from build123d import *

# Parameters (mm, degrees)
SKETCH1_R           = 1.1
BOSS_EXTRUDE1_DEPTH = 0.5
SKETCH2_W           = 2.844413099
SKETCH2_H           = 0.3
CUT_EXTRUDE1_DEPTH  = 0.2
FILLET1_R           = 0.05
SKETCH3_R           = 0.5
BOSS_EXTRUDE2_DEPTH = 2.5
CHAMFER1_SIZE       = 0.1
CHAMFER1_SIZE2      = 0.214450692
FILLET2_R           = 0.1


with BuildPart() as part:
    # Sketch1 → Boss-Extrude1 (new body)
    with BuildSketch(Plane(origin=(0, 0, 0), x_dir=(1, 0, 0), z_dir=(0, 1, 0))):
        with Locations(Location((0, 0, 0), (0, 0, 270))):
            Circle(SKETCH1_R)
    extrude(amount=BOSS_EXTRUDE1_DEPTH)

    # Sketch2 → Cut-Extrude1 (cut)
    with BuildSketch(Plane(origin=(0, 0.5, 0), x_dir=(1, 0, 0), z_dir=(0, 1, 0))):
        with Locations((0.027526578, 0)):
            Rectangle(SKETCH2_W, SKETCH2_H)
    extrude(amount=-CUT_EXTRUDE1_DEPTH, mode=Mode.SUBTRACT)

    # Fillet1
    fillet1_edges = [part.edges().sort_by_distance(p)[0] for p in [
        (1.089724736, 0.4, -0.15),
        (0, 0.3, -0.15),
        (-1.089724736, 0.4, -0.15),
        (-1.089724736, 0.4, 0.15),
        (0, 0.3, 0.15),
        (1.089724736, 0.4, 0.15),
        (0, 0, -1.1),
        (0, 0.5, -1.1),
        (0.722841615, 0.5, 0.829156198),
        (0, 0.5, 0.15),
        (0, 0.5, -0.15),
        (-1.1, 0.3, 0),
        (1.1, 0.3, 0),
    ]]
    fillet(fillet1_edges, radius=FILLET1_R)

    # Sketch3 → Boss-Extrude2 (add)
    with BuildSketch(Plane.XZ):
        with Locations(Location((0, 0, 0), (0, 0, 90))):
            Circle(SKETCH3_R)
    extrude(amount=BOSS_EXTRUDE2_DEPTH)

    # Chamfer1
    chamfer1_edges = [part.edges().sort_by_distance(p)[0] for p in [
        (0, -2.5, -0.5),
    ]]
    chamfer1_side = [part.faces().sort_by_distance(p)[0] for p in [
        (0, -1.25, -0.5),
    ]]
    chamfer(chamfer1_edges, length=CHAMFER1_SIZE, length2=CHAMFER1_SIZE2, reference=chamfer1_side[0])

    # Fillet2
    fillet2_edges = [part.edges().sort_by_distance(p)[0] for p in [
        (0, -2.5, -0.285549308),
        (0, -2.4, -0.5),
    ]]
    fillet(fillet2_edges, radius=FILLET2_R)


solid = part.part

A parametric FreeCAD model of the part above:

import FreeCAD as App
import Part
import Sketcher


def edges_at(feature, points):
    """Names of the edges that pass closest to the given points."""
    edges = feature.Shape.Edges
    near = lambda p: min(range(len(edges)), key=lambda i: edges[i].distToShape(Part.Vertex(*p))[0])
    return sorted({f"Edge{near(p) + 1}" for p in points})

doc = App.newDocument("Part")
params = doc.addObject("Spreadsheet::Sheet", "Params")
for row, (alias, value) in enumerate([
    ("sketch1_diameter", "2.2 mm"),
    ("pad1_length", "0.5 mm"),
    ("sketch2_height", "0.3 mm"),
    ("pocket1_length", "0.2 mm"),
    ("fillet_radius", "0.05 mm"),
    ("sketch3_diameter", "1 mm"),
    ("pad2_length", "2.5 mm"),
    ("chamfer_size", "0.1 mm"),
    ("chamfer_size2", "0.214451 mm"),
    ("fillet2_radius", "0.1 mm"),
], start=1):
    params.set(f"A{row}", alias)
    params.set(f"B{row}", "=" + value)
    params.setAlias(f"B{row}", alias)

body = doc.addObject("PartDesign::Body", "Body")

# Sketch on XZ plane
sketch1 = doc.addObject("Sketcher::SketchObject", "Sketch")
body.addObject(sketch1)
sketch1.AttachmentSupport = (doc.XZ_Plane, [""])
sketch1.MapMode = "FlatFace"
sketch1.addGeometry(Part.Circle(App.Vector(0, 0, 0), App.Vector(0, 0, 1), 1.1), False)
sketch1.addConstraint([
    Sketcher.Constraint("Coincident", 0, 3, -1, 1),
    Sketcher.Constraint("Diameter", 0, 2.2),
])
sketch1.setExpression("Constraints[1]", "Params.sketch1_diameter")
pad1 = doc.addObject("PartDesign::Pad", "Pad")
body.addObject(pad1)
pad1.Profile = sketch1
pad1.setExpression("Length", "Params.pad1_length")
pad1.Reversed = True

# Sketch on XZ plane
sketch2 = doc.addObject("Sketcher::SketchObject", "Sketch001")
body.addObject(sketch2)
sketch2.AttachmentSupport = (doc.XZ_Plane, [""])
sketch2.MapMode = "FlatFace"
sketch2.AttachmentOffset = App.Placement(App.Vector(0, 0, -0.5), App.Rotation())
sketch2.addGeometry([
    Part.LineSegment(App.Vector(-1.39468, -0.15, 0), App.Vector(-1.39468, 0.15, 0)),
    Part.LineSegment(App.Vector(-1.39468, 0.15, 0), App.Vector(1.449733, 0.15, 0)),
    Part.LineSegment(App.Vector(1.449733, 0.15, 0), App.Vector(1.449733, -0.15, 0)),
    Part.LineSegment(App.Vector(1.449733, -0.15, 0), App.Vector(-1.39468, -0.15, 0)),
], False)
sketch2.addConstraint([
    Sketcher.Constraint("Coincident", 0, 2, 1, 1),
    Sketcher.Constraint("Coincident", 1, 2, 2, 1),
    Sketcher.Constraint("Coincident", 2, 2, 3, 1),
    Sketcher.Constraint("Coincident", 3, 2, 0, 1),
    Sketcher.Constraint("Vertical", 0),
    Sketcher.Constraint("Horizontal", 1),
    Sketcher.Constraint("Vertical", 2),
    Sketcher.Constraint("Horizontal", 3),
    Sketcher.Constraint("DistanceY", 0, 1, 0, 2, 0.3),
    Sketcher.Constraint("DistanceY", -1, 1, 0, 2, 0.15),
    Sketcher.Constraint("DistanceX", 1, 1, 1, 2, 2.844413),
    Sketcher.Constraint("DistanceX", 0, 2, -1, 1, 1.39468),
])
sketch2.setExpression("Constraints[8]", "Params.sketch2_height")
pocket1 = doc.addObject("PartDesign::Pocket", "Pocket")
body.addObject(pocket1)
pocket1.Profile = sketch2
pocket1.setExpression("Length", "Params.pocket1_length")
pocket1.Reversed = True
doc.recompute()

fillet = doc.addObject("PartDesign::Fillet", "Fillet")
body.addObject(fillet)
fillet.Base = (pocket1, ["Edge1"])
fillet.UseAllEdges = True
fillet.setExpression("Radius", "Params.fillet_radius")

# Sketch on XZ plane
sketch3 = doc.addObject("Sketcher::SketchObject", "Sketch002")
body.addObject(sketch3)
sketch3.AttachmentSupport = (doc.XZ_Plane, [""])
sketch3.MapMode = "FlatFace"
sketch3.addGeometry(Part.Circle(App.Vector(0, 0, 0), App.Vector(0, 0, 1), 0.5), False)
sketch3.addConstraint([
    Sketcher.Constraint("Coincident", 0, 3, -1, 1),
    Sketcher.Constraint("Diameter", 0, 1.0),
])
sketch3.setExpression("Constraints[1]", "Params.sketch3_diameter")
pad2 = doc.addObject("PartDesign::Pad", "Pad001")
body.addObject(pad2)
pad2.Profile = sketch3
pad2.setExpression("Length", "Params.pad2_length")
doc.recompute()

chamfer = doc.addObject("PartDesign::Chamfer", "Chamfer")
body.addObject(chamfer)
chamfer.Base = (pad2, edges_at(pad2, [(0, -2.5, -0.5)]))
chamfer.ChamferType = "Two distances"
chamfer.setExpression("Size", "Params.chamfer_size")
chamfer.setExpression("Size2", "Params.chamfer_size2")
doc.recompute()

fillet2 = doc.addObject("PartDesign::Fillet", "Fillet001")
body.addObject(fillet2)
fillet2.Base = (chamfer, edges_at(chamfer, [(0, -2.5, -0.286), (0, -2.4, -0.5)]))
fillet2.setExpression("Radius", "Params.fillet2_radius")

doc.recompute()
